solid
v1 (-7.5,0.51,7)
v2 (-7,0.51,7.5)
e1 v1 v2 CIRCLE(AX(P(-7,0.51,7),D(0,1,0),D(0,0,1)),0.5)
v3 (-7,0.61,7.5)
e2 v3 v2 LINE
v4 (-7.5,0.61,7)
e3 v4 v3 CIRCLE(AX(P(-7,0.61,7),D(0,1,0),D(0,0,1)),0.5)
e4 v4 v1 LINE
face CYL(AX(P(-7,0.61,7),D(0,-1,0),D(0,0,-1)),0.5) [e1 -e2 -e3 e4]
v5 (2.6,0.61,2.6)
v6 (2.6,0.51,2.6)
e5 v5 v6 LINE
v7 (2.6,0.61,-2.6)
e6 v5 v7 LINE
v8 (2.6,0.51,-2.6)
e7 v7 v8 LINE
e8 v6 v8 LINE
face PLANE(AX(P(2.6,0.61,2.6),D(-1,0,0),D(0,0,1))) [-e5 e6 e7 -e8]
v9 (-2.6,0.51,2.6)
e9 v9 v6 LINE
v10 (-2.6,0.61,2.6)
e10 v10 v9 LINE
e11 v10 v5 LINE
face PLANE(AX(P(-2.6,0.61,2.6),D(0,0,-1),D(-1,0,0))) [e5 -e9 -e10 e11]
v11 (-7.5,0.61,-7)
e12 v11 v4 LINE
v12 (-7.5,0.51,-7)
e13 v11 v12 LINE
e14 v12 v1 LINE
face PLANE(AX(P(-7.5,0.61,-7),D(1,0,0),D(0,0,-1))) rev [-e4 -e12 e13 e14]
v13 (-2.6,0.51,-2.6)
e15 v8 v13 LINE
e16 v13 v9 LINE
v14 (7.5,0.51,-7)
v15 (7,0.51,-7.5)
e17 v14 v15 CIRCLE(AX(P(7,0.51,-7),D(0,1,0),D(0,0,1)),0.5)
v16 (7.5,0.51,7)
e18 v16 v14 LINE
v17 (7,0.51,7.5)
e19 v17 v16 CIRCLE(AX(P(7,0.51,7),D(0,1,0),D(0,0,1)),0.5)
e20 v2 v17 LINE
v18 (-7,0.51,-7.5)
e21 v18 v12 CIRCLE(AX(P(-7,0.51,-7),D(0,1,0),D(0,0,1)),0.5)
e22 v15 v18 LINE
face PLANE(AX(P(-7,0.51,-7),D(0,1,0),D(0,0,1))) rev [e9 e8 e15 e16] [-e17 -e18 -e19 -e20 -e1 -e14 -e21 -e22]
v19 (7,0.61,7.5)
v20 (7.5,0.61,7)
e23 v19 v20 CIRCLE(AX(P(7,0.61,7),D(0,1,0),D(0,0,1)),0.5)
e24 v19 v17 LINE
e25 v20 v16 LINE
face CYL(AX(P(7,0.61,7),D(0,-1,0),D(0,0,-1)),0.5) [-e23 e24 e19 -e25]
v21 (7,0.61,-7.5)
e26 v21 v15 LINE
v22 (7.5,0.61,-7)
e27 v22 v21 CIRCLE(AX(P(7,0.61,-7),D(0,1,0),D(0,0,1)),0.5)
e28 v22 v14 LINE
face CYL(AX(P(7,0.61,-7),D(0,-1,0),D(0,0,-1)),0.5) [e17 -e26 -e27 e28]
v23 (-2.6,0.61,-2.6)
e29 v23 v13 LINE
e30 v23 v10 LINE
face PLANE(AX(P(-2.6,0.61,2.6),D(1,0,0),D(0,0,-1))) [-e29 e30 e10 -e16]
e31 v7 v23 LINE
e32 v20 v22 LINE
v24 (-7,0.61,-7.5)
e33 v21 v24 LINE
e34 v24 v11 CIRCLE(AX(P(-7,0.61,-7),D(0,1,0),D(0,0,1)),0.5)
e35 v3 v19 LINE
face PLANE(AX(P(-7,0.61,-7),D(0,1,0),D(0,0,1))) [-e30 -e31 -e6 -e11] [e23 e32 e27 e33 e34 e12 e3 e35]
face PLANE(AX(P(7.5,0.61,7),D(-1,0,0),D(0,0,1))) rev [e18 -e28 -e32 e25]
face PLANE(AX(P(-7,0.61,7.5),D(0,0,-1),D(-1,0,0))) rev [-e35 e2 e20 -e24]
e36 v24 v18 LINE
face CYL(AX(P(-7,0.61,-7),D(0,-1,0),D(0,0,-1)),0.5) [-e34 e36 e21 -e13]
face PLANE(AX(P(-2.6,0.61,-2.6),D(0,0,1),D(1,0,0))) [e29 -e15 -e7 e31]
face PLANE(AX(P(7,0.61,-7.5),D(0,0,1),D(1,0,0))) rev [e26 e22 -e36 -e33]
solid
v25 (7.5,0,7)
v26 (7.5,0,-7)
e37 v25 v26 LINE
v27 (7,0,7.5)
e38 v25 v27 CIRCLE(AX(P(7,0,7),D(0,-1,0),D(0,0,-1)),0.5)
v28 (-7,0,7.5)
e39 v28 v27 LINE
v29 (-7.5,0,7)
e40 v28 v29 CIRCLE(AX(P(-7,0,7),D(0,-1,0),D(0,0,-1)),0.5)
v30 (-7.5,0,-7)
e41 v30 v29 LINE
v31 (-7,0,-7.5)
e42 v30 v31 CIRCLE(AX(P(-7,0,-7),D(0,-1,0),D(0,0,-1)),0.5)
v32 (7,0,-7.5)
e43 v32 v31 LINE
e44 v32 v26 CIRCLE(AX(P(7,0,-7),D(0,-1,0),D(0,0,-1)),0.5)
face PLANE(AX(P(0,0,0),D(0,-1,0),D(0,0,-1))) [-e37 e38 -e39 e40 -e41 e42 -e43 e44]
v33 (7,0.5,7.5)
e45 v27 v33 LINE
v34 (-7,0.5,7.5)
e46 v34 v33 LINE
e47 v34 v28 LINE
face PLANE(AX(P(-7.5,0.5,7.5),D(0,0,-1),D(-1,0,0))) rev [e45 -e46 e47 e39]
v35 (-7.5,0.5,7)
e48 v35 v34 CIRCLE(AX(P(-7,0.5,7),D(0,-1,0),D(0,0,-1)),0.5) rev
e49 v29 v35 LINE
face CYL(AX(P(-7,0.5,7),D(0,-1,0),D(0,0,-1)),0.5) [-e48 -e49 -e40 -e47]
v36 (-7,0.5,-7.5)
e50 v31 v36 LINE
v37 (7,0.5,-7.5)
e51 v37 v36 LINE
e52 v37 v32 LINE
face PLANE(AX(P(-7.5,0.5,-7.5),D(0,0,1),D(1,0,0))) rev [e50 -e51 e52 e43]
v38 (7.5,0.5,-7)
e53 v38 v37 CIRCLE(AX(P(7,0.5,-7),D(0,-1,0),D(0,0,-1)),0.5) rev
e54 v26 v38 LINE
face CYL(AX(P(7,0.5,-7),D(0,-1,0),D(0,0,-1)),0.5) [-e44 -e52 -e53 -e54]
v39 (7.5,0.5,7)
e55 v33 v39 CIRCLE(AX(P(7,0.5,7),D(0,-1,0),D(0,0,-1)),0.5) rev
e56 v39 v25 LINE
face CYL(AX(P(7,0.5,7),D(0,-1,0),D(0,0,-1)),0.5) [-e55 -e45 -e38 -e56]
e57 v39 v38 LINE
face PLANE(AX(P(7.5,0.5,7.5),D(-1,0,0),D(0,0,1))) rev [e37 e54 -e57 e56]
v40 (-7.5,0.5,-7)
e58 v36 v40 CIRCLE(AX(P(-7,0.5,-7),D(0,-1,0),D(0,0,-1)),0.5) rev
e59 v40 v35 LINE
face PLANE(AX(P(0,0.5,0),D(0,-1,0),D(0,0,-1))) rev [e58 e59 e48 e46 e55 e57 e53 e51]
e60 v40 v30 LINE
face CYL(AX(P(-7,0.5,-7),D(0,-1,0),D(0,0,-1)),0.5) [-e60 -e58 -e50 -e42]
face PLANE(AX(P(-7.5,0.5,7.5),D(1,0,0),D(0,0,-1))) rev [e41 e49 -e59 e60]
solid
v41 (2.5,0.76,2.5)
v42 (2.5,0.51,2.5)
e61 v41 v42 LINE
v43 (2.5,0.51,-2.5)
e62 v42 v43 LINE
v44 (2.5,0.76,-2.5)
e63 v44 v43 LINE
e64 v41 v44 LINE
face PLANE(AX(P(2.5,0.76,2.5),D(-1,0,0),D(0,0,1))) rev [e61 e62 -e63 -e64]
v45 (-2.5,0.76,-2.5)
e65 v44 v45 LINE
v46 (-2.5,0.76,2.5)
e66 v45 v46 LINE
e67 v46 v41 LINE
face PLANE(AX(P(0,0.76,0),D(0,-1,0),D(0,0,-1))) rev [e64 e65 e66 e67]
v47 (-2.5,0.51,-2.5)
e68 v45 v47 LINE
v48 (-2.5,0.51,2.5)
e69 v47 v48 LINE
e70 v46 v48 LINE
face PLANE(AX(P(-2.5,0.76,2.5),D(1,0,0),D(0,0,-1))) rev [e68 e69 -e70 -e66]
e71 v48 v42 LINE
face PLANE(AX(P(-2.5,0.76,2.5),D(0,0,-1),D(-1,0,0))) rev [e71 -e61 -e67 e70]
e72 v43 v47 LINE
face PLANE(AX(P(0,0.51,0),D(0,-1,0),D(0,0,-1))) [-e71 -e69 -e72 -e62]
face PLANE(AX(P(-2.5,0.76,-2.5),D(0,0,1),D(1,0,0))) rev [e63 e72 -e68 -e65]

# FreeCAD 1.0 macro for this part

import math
import FreeCAD as App
import Part
import Sketcher


def edges_at(feature, points):
    """Names of the edges that pass closest to the given points."""
    edges = feature.Shape.Edges
    near = lambda p: min(range(len(edges)), key=lambda i: edges[i].distToShape(Part.Vertex(*p))[0])
    return sorted({f"Edge{near(p) + 1}" for p in points})

doc = App.newDocument("Part")
body = doc.addObject("PartDesign::Body", "Body")

# Sketch on XZ plane
sketch1 = body.newObject("Sketcher::SketchObject", "Sketch")
sketch1.AttachmentSupport = (doc.getObject("XZ_Plane"), [""])
sketch1.MapMode = "FlatFace"
sketch1.addGeometry([
    Part.LineSegment(App.Vector(-8, -8, 0), App.Vector(-8, 8, 0)),
    Part.LineSegment(App.Vector(-8, 8, 0), App.Vector(8, 8, 0)),
    Part.LineSegment(App.Vector(8, 8, 0), App.Vector(8, -8, 0)),
    Part.LineSegment(App.Vector(8, -8, 0), App.Vector(-8, -8, 0)),
], False)
sketch1.addConstraint([
    Sketcher.Constraint("Coincident", 0, 2, 1, 1),
    Sketcher.Constraint("Coincident", 1, 2, 2, 1),
    Sketcher.Constraint("Coincident", 2, 2, 3, 1),
    Sketcher.Constraint("Coincident", 3, 2, 0, 1),
    Sketcher.Constraint("Vertical", 0),
    Sketcher.Constraint("Horizontal", 1),
    Sketcher.Constraint("Vertical", 2),
    Sketcher.Constraint("Horizontal", 3),
    Sketcher.Constraint("Symmetric", 0, 2, 2, 2, -1, 1),
    Sketcher.Constraint("Equal", 3, 0),
    Sketcher.Constraint("DistanceX", 1, 1, 1, 2, 15.0),
])
pad1 = body.newObject("PartDesign::Pad", "Pad")
pad1.Profile = sketch1
pad1.Length = 0.5
pad1.Reversed = True
doc.recompute()

fillet = body.newObject("PartDesign::Fillet", "Fillet")
fillet.Base = (pad1, edges_at(pad1, [
    (7.5, 0.25, 7.5),
    (-7.5, 0.25, 7.5),
    (-7.5, 0.25, -7.5),
    (7.5, 0.25, -7.5),
]))
fillet.Radius = 0.5
body2 = doc.addObject("PartDesign::Body", "Body001")

# Sketch on XZ plane
sketch2 = body2.newObject("Sketcher::SketchObject", "Sketch001")
sketch2.AttachmentSupport = (doc.getObject("XZ_Plane001"), [""])
sketch2.MapMode = "FlatFace"
sketch2.AttachmentOffset = App.Placement(App.Vector(0, 0, -0.61), App.Rotation())
sketch2.addGeometry([
    Part.LineSegment(App.Vector(-7.5, -7, 0), App.Vector(-7.5, 7, 0)),  # 0
    Part.ArcOfCircle(Part.Circle(App.Vector(-7, 7, 0), App.Vector(0, 0, 1), 0.5), math.radians(90), math.radians(180)),  # 1
    Part.LineSegment(App.Vector(-7, 7.5, 0), App.Vector(7, 7.5, 0)),  # 2
    Part.ArcOfCircle(Part.Circle(App.Vector(7, 7, 0), App.Vector(0, 0, 1), 0.5), math.radians(0), math.radians(90)),  # 3
    Part.LineSegment(App.Vector(7.5, 7, 0), App.Vector(7.5, -7, 0)),  # 4
    Part.ArcOfCircle(Part.Circle(App.Vector(7, -7, 0), App.Vector(0, 0, 1), 0.5), math.radians(-90), math.radians(0)),  # 5
    Part.LineSegment(App.Vector(7, -7.5, 0), App.Vector(-7, -7.5, 0)),  # 6
    Part.ArcOfCircle(Part.Circle(App.Vector(-7, -7, 0), App.Vector(0, 0, 1), 0.5), math.radians(180), math.radians(270)),  # 7
    Part.LineSegment(App.Vector(2.6, 2.6, 0), App.Vector(-2.6, 2.6, 0)),  # 8
    Part.LineSegment(App.Vector(-2.6, 2.6, 0), App.Vector(-2.6, -2.6, 0)),  # 9
    Part.LineSegment(App.Vector(-2.6, -2.6, 0), App.Vector(2.6, -2.6, 0)),  # 10
    Part.LineSegment(App.Vector(2.6, -2.6, 0), App.Vector(2.6, 2.6, 0)),  # 11
], False)
sketch2.addConstraint([
    Sketcher.Constraint("Tangent", 0, 2, 1, 2),
    Sketcher.Constraint("Tangent", 1, 1, 2, 1),
    Sketcher.Constraint("Tangent", 2, 2, 3, 2),
    Sketcher.Constraint("Tangent", 3, 1, 4, 1),
    Sketcher.Constraint("Tangent", 4, 2, 5, 2),
    Sketcher.Constraint("Tangent", 5, 1, 6, 1),
    Sketcher.Constraint("Tangent", 6, 2, 7, 2),
    Sketcher.Constraint("Tangent", 7, 1, 0, 1),
    Sketcher.Constraint("Coincident", 8, 2, 9, 1),
    Sketcher.Constraint("Coincident", 9, 2, 10, 1),
    Sketcher.Constraint("Coincident", 10, 2, 11, 1),
    Sketcher.Constraint("Coincident", 11, 2, 8, 1),
    Sketcher.Constraint("Vertical", 0),
    Sketcher.Constraint("Horizontal", 2),
    Sketcher.Constraint("Vertical", 4),
    Sketcher.Constraint("Horizontal", 6),
    Sketcher.Constraint("Horizontal", 8),
    Sketcher.Constraint("Vertical", 9),
    Sketcher.Constraint("Horizontal", 10),
    Sketcher.Constraint("Vertical", 11),
    Sketcher.Constraint("Equal", 1, 3),
    Sketcher.Constraint("Equal", 3, 5),
    Sketcher.Constraint("Equal", 5, 7),
    Sketcher.Constraint("Symmetric", 1, 3, 5, 3, -1, 1),
    Sketcher.Constraint("Symmetric", 8, 2, 10, 2, -1, 1),
    Sketcher.Constraint("Equal", 6, 0),
    Sketcher.Constraint("Equal", 10, 9),
    Sketcher.Constraint("Radius", 1, 0.5),
    Sketcher.Constraint("DistanceX", 2, 1, 2, 2, 14.0),
    Sketcher.Constraint("DistanceX", 8, 2, 8, 1, 5.2),
])
pad2 = body2.newObject("PartDesign::Pad", "Pad001")
pad2.Profile = sketch2
pad2.Length = 0.1
body3 = doc.addObject("PartDesign::Body", "Body002")

# Sketch on XZ plane
sketch3 = body3.newObject("Sketcher::SketchObject", "Sketch002")
sketch3.AttachmentSupport = (doc.getObject("XZ_Plane002"), [""])
sketch3.MapMode = "FlatFace"
sketch3.AttachmentOffset = App.Placement(App.Vector(0, 0, -0.51), App.Rotation())
sketch3.addGeometry([
    Part.LineSegment(App.Vector(-2, -2, 0), App.Vector(-2, 2, 0)),
    Part.LineSegment(App.Vector(-2, 2, 0), App.Vector(2, 2, 0)),
    Part.LineSegment(App.Vector(2, 2, 0), App.Vector(2, -2, 0)),
    Part.LineSegment(App.Vector(2, -2, 0), App.Vector(-2, -2, 0)),
], False)
sketch3.addConstraint([
    Sketcher.Constraint("Coincident", 0, 2, 1, 1),
    Sketcher.Constraint("Coincident", 1, 2, 2, 1),
    Sketcher.Constraint("Coincident", 2, 2, 3, 1),
    Sketcher.Constraint("Coincident", 3, 2, 0, 1),
    Sketcher.Constraint("Vertical", 0),
    Sketcher.Constraint("Horizontal", 1),
    Sketcher.Constraint("Vertical", 2),
    Sketcher.Constraint("Horizontal", 3),
    Sketcher.Constraint("Symmetric", 0, 2, 2, 2, -1, 1),
    Sketcher.Constraint("Equal", 3, 0),
    Sketcher.Constraint("DistanceX", 1, 1, 1, 2, 5.0),
])
pad3 = body3.newObject("PartDesign::Pad", "Pad002")
pad3.Profile = sketch3
pad3.Length = 0.25
pad3.Reversed = True

doc.recompute()
